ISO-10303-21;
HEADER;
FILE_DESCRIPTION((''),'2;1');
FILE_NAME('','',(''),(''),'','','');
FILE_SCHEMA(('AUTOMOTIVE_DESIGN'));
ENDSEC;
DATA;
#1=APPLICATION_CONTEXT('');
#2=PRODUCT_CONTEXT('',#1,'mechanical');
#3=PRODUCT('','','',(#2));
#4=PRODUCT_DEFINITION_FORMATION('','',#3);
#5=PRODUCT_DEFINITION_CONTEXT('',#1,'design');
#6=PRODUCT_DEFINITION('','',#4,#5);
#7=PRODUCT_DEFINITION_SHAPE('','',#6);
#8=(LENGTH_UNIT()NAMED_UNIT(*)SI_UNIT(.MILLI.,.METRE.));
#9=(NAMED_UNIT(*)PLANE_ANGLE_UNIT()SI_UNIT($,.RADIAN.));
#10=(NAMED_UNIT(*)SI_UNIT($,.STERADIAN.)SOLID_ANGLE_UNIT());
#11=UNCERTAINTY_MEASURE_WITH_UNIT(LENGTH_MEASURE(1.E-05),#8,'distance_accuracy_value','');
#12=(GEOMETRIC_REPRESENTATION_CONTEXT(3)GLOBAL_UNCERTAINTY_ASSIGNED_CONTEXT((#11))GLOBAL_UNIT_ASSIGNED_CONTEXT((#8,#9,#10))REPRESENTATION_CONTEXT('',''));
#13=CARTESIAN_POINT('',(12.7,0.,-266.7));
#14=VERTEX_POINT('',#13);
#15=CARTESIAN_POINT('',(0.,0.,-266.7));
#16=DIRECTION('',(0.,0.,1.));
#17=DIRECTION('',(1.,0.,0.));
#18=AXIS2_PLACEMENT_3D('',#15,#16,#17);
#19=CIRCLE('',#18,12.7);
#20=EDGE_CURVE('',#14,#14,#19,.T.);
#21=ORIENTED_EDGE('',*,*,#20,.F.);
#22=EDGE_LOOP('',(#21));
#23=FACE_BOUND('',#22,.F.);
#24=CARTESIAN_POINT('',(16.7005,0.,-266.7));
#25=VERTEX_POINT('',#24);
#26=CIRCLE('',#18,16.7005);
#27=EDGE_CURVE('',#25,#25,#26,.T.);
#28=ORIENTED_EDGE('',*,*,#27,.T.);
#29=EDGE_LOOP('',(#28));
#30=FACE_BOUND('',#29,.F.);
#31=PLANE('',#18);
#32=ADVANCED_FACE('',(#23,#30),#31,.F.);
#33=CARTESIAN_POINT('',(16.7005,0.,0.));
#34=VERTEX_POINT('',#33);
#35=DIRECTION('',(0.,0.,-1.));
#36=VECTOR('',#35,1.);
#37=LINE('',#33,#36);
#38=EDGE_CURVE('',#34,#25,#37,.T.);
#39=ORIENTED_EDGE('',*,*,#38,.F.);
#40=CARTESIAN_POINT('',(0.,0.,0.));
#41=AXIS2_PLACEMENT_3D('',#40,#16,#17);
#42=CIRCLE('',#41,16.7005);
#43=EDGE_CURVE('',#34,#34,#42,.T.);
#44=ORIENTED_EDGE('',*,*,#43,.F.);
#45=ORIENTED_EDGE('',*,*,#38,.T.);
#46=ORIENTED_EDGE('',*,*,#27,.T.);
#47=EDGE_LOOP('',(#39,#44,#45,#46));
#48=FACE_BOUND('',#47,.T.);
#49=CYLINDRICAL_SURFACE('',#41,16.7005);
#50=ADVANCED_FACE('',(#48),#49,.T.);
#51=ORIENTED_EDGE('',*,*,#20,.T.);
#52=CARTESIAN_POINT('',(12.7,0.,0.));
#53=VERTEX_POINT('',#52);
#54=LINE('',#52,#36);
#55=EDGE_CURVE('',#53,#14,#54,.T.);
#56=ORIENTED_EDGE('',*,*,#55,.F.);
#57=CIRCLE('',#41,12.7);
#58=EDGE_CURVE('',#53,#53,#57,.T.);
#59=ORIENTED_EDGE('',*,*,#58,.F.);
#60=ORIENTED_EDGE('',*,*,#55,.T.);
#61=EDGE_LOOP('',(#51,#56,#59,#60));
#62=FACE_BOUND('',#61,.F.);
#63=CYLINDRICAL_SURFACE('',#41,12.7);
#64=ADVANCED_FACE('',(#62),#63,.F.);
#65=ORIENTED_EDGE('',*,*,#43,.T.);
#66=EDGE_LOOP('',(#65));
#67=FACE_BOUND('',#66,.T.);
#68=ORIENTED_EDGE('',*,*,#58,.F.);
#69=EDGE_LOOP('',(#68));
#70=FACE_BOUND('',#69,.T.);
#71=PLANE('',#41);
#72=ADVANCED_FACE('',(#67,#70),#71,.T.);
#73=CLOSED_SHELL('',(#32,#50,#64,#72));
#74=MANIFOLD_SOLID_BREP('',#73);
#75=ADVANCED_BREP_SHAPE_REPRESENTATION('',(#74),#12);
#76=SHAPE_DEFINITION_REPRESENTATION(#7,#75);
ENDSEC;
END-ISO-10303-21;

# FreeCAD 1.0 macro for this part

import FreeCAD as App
import Part
import Sketcher

V = App.Vector
Q = App.Units.Quantity

doc = App.newDocument("Part")
params = doc.addObject("Spreadsheet::Sheet", "Params")
for row, (alias, value) in enumerate([
    ("sketch1_diameter", "1 in"),
    ("sketch1_diameter2", "1.315 in"),
    ("pad1_length", "10.5 in"),
], start=1):
    params.set(f"A{row}", alias)
    params.set(f"B{row}", "=" + value)
    params.setAlias(f"B{row}", alias)

body = doc.addObject("PartDesign::Body", "Body")

sketch1 = body.newObject("Sketcher::SketchObject", "Sketch")
sketch1.AttachmentSupport = (doc.getObject("XY_Plane"), [""])
sketch1.MapMode = "FlatFace"
sketch1.addGeometry([
    Part.Circle(V(0, 0, 0), V(0, 0, 1), 17),
    Part.Circle(V(0, 0, 0), V(0, 0, 1), 13),
], False)
sketch1.addConstraint([
    Sketcher.Constraint("Coincident", 0, 3, -1, 1),
    Sketcher.Constraint("Coincident", 1, 3, -1, 1),
    Sketcher.Constraint("Diameter", 1, Q("1 in")),
    Sketcher.Constraint("Diameter", 0, Q("1.315 in")),
])
sketch1.setExpression("Constraints[2]", "Params.sketch1_diameter")
sketch1.setExpression("Constraints[3]", "Params.sketch1_diameter2")
pad1 = body.newObject("PartDesign::Pad", "Pad")
pad1.Profile = sketch1
pad1.setExpression("Length", "Params.pad1_length")
pad1.Reversed = True

doc.recompute()
